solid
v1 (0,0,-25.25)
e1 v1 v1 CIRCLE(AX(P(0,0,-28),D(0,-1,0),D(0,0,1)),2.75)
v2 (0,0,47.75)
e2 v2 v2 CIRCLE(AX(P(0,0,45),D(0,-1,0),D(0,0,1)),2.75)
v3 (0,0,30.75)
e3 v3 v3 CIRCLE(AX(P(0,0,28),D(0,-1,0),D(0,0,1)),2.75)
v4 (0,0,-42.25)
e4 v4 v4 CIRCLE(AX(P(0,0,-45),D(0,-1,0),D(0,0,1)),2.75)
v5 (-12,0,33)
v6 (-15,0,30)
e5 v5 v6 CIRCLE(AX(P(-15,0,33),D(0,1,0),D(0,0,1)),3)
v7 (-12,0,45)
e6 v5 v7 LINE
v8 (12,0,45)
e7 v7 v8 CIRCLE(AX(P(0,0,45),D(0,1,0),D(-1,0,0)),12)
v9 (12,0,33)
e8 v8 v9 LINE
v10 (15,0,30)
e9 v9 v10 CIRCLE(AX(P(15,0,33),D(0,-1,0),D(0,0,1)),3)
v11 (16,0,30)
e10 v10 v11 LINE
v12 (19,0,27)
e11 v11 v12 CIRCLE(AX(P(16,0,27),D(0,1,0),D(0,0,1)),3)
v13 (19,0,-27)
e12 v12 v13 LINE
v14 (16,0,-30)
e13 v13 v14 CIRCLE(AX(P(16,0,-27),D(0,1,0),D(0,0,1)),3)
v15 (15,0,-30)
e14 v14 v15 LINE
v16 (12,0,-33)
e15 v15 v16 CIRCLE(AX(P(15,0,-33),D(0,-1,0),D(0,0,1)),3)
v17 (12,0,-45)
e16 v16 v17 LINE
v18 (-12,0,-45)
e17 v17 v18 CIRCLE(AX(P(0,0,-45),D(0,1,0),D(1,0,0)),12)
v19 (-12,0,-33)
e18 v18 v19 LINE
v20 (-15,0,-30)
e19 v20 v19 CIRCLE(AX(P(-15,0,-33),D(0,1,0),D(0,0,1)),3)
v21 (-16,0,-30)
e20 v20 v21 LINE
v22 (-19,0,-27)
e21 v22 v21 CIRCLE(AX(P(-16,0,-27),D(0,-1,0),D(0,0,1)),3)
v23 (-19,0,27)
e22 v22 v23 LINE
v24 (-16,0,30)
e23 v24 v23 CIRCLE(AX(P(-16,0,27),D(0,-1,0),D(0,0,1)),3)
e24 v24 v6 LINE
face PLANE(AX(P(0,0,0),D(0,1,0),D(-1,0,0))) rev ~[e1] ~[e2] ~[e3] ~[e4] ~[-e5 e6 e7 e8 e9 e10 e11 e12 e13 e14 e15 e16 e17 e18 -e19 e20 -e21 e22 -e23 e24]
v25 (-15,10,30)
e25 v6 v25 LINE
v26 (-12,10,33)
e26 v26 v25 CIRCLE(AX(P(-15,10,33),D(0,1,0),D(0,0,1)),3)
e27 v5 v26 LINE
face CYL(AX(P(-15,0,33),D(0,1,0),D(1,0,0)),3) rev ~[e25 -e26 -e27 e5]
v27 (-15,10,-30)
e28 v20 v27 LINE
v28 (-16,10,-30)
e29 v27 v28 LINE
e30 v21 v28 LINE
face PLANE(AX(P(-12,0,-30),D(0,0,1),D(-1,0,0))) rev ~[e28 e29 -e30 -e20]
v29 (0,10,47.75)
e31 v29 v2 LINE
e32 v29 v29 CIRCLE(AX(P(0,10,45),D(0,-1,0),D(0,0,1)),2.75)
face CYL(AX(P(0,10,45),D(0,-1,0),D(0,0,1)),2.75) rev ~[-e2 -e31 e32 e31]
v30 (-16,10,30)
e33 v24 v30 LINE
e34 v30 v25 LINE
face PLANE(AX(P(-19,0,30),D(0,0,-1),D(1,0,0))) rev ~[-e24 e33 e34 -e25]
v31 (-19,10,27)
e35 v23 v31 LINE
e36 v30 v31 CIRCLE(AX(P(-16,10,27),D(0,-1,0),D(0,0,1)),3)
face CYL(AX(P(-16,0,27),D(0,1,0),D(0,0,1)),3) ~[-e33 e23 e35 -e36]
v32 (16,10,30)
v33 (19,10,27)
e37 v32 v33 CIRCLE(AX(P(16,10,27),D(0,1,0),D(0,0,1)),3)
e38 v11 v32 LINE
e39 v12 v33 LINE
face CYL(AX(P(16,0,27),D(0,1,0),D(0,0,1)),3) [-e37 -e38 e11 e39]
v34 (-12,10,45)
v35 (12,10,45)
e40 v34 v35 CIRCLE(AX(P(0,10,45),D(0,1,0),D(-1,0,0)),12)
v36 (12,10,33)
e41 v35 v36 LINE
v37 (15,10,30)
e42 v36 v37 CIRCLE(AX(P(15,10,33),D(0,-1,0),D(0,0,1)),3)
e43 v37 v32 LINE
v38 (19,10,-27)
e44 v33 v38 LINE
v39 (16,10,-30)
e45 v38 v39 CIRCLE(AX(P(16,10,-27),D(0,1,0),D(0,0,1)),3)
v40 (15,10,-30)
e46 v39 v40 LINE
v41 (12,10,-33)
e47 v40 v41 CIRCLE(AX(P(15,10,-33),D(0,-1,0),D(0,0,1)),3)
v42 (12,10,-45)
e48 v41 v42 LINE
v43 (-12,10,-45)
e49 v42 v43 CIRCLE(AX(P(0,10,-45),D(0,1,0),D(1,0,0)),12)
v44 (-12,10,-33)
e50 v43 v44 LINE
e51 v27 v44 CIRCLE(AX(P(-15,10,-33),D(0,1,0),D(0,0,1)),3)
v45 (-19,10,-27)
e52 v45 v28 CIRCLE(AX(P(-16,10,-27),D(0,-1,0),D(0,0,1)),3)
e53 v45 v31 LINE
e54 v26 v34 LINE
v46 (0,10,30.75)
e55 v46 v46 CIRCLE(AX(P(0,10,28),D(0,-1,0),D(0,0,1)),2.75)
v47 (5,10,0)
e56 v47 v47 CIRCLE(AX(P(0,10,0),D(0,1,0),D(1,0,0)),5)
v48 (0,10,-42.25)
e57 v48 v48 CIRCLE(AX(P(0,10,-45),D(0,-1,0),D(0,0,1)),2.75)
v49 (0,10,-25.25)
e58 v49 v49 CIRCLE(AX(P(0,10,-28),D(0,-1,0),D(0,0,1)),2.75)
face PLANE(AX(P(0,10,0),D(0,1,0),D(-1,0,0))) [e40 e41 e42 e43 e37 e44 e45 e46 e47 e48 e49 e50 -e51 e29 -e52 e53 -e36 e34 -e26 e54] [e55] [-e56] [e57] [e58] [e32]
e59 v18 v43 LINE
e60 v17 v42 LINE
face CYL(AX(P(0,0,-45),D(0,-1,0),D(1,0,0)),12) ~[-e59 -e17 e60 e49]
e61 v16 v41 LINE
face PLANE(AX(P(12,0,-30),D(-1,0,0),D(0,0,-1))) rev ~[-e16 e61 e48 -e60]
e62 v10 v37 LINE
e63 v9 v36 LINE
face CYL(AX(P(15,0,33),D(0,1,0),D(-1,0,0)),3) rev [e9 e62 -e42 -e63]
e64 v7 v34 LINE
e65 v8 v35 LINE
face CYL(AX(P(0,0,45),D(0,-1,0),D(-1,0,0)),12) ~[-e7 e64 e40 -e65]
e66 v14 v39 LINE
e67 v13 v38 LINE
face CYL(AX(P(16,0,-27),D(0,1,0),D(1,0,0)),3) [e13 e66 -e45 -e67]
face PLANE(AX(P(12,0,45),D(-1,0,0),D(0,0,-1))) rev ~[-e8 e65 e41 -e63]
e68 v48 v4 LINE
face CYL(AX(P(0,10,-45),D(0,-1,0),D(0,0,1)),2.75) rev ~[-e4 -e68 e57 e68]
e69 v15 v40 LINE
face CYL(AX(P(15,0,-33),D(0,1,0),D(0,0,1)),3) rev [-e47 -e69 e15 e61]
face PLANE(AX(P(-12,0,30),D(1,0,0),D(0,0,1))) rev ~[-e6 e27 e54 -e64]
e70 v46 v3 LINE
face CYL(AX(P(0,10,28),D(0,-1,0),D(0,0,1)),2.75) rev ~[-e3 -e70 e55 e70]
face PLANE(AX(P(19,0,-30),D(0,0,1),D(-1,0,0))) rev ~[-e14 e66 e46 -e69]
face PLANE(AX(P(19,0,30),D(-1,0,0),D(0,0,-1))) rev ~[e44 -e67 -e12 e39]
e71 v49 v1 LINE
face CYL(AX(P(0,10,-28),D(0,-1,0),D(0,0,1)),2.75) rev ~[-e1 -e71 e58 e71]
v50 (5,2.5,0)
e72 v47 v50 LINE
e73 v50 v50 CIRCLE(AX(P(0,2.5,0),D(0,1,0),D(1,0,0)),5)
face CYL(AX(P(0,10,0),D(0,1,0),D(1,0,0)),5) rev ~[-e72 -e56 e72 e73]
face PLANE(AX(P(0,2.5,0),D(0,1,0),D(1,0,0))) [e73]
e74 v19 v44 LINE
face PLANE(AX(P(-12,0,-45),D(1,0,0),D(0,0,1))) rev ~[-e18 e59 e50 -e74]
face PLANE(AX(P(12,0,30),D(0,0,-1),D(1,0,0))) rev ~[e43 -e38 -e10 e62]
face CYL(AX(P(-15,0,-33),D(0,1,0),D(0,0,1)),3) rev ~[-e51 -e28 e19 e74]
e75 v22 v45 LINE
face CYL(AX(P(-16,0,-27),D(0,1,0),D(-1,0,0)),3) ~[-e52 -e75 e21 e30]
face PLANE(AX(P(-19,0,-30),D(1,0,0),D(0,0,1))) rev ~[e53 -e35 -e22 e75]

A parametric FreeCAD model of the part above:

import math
import FreeCAD as App
import Part
import Sketcher
from FreeCAD import Vector
Q = App.Units.Quantity


def edges_at(feature, points):
    """Names of the edges that pass closest to the given points."""
    edges = feature.Shape.Edges
    near = lambda p: min(range(len(edges)), key=lambda i: edges[i].distToShape(Part.Vertex(*p))[0])
    return sorted({f"Edge{near(p) + 1}" for p in points})

doc = App.newDocument("Part")
params = doc.addObject("Spreadsheet::Sheet", "Params")
for row, (alias, value) in enumerate([
    ("sketch1_radius", "12 mm"),
    ("sketch1_height", "60 mm"),
    ("pad1_length", "10 mm"),
    ("sketch2_diameter", "5.5 mm"),
    ("hole_diameter", "5.5 mm"),
    ("fillet_radius", "3 mm"),
    ("sketch3_diameter", "5.5 mm"),
    ("hole2_diameter", "5.5 mm"),
    ("sketch4_diameter", "10 mm"),
    ("pocket1_length", "7.5 mm"),
], start=1):
    params.set(f"A{row}", alias)
    params.set(f"B{row}", "=" + value)
    params.setAlias(f"B{row}", alias)

body = doc.addObject("PartDesign::Body", "Body")

# Sketch on XZ plane
sketch1 = doc.addObject("Sketcher::SketchObject", "Sketch")
body.addObject(sketch1)
sketch1.AttachmentSupport = (doc.XZ_Plane, [""])
sketch1.MapMode = "FlatFace"
sketch1.addGeometry([
    Part.ArcOfCircle(Part.Circle(Vector(0, 45, 0), Vector(0, 0, 1), 12), math.radians(0), math.radians(180)),  # 0
    Part.LineSegment(Vector(12, 45, 0), Vector(12, 30, 0)),  # 1
    Part.LineSegment(Vector(12, 30, 0), Vector(19, 30, 0)),  # 2
    Part.LineSegment(Vector(19, 30, 0), Vector(19, -30, 0)),  # 3
    Part.LineSegment(Vector(19, -30, 0), Vector(12, -30, 0)),  # 4
    Part.LineSegment(Vector(12, -30, 0), Vector(12, -45, 0)),  # 5
    Part.ArcOfCircle(Part.Circle(Vector(0, -45, 0), Vector(0, 0, 1), 12), math.radians(180), math.radians(360)),  # 6
    Part.LineSegment(Vector(-12, -45, 0), Vector(-12, -30, 0)),  # 7
    Part.LineSegment(Vector(-12, -30, 0), Vector(-19, -30, 0)),  # 8
    Part.LineSegment(Vector(-19, -30, 0), Vector(-19, 30, 0)),  # 9
    Part.LineSegment(Vector(-19, 30, 0), Vector(-12, 30, 0)),  # 10
    Part.LineSegment(Vector(-12, 30, 0), Vector(-12, 45, 0)),  # 11
], False)
sketch1.addConstraint([
    Sketcher.Constraint("Tangent", 0, 1, 1, 1),
    Sketcher.Constraint("Coincident", 1, 2, 2, 1),
    Sketcher.Constraint("Coincident", 2, 2, 3, 1),
    Sketcher.Constraint("Coincident", 3, 2, 4, 1),
    Sketcher.Constraint("Coincident", 4, 2, 5, 1),
    Sketcher.Constraint("Tangent", 5, 2, 6, 2),
    Sketcher.Constraint("Tangent", 6, 1, 7, 1),
    Sketcher.Constraint("Coincident", 7, 2, 8, 1),
    Sketcher.Constraint("Coincident", 8, 2, 9, 1),
    Sketcher.Constraint("Coincident", 9, 2, 10, 1),
    Sketcher.Constraint("Coincident", 10, 2, 11, 1),
    Sketcher.Constraint("Tangent", 11, 2, 0, 2),
    Sketcher.Constraint("Vertical", 1),
    Sketcher.Constraint("Horizontal", 2),
    Sketcher.Constraint("Vertical", 3),
    Sketcher.Constraint("Horizontal", 4),
    Sketcher.Constraint("Vertical", 5),
    Sketcher.Constraint("Vertical", 7),
    Sketcher.Constraint("Horizontal", 8),
    Sketcher.Constraint("Vertical", 9),
    Sketcher.Constraint("Horizontal", 10),
    Sketcher.Constraint("Vertical", 11),
    Sketcher.Constraint("Equal", 0, 6),
    Sketcher.Constraint("Symmetric", 0, 3, 6, 3, -1, 1),
    Sketcher.Constraint("Symmetric", 2, 2, 8, 2, -1, 1),
    Sketcher.Constraint("Symmetric", 4, 2, 7, 2, -2),
    Sketcher.Constraint("Horizontal", 2, 2, 9, 2),
    Sketcher.Constraint("Radius", 0, Q("12 mm")),
    Sketcher.Constraint("DistanceY", 3, 2, 3, 1, Q("60 mm")),
    Sketcher.Constraint("DistanceY", 6, 3, 0, 3, Q("90 mm")),
    Sketcher.Constraint("DistanceX", 9, 2, 2, 2, Q("38 mm")),
])
sketch1.setExpression("Constraints[27]", "Params.sketch1_radius")
sketch1.setExpression("Constraints[28]", "Params.sketch1_height")
pad1 = doc.addObject("PartDesign::Pad", "Pad")
body.addObject(pad1)
pad1.Profile = sketch1
pad1.setExpression("Length", "Params.pad1_length")
pad1.Reversed = True

# Sketch on XZ plane
sketch2 = doc.addObject("Sketcher::SketchObject", "Sketch001")
body.addObject(sketch2)
sketch2.AttachmentSupport = (doc.XZ_Plane, [""])
sketch2.MapMode = "FlatFace"
sketch2.AttachmentOffset = App.Placement(Vector(0, 0, -10), App.Rotation())
sketch2.addGeometry([
    Part.Circle(Vector(0, 28, 0), Vector(0, 0, 1), 2.8),
    Part.Circle(Vector(0, -28, 0), Vector(0, 0, 1), 2.8),
], False)
sketch2.addConstraint([
    Sketcher.Constraint("Equal", 0, 1),
    Sketcher.Constraint("Symmetric", 0, 3, 1, 3, -1, 1),
    Sketcher.Constraint("PointOnObject", 0, 3, -2),
    Sketcher.Constraint("Diameter", 0, Q("5.5 mm")),
    Sketcher.Constraint("DistanceY", -1, 1, 0, 3, Q("28 mm")),
])
sketch2.setExpression("Constraints[3]", "Params.sketch2_diameter")
doc.recompute()
hole = doc.addObject("PartDesign::Hole", "Hole")
body.addObject(hole)
hole.Profile = sketch2
hole.ThreadType = "None"
hole.setExpression("Diameter", "Params.hole_diameter")
hole.DepthType = "ThroughAll"
hole.Reversed = True
doc.recompute()

fillet = doc.addObject("PartDesign::Fillet", "Fillet")
body.addObject(fillet)
fillet.Base = (hole, edges_at(hole, [
    (19, 5, 30),
    (19, 5, -30),
    (12, 5, 30),
    (-19, 5, 30),
    (-12, 5, 30),
    (-19, 5, -30),
    (-12, 5, -30),
    (12, 5, -30),
]))
fillet.setExpression("Radius", "Params.fillet_radius")

# Sketch on XZ plane
sketch3 = doc.addObject("Sketcher::SketchObject", "Sketch002")
body.addObject(sketch3)
sketch3.AttachmentSupport = (doc.XZ_Plane, [""])
sketch3.MapMode = "FlatFace"
sketch3.AttachmentOffset = App.Placement(Vector(0, 0, -10), App.Rotation())
sketch3.addGeometry([
    Part.Circle(Vector(0, 45, 0), Vector(0, 0, 1), 2.8),
    Part.Circle(Vector(0, -45, 0), Vector(0, 0, 1), 2.8),
], False)
sketch3.addConstraint([
    Sketcher.Constraint("Equal", 0, 1),
    Sketcher.Constraint("Symmetric", 0, 3, 1, 3, -1, 1),
    Sketcher.Constraint("PointOnObject", 0, 3, -2),
    Sketcher.Constraint("Diameter", 0, Q("5.5 mm")),
    Sketcher.Constraint("DistanceY", -1, 1, 0, 3, Q("45 mm")),
])
sketch3.setExpression("Constraints[3]", "Params.sketch3_diameter")
doc.recompute()
hole2 = doc.addObject("PartDesign::Hole", "Hole001")
body.addObject(hole2)
hole2.Profile = sketch3
hole2.ThreadType = "None"
hole2.setExpression("Diameter", "Params.hole2_diameter")
hole2.DepthType = "ThroughAll"
hole2.Reversed = True

# Sketch on XZ plane
sketch4 = doc.addObject("Sketcher::SketchObject", "Sketch003")
body.addObject(sketch4)
sketch4.AttachmentSupport = (doc.XZ_Plane, [""])
sketch4.MapMode = "FlatFace"
sketch4.AttachmentOffset = App.Placement(Vector(0, 0, -10), App.Rotation())
sketch4.addGeometry(Part.Circle(Vector(0, 0, 0), Vector(0, 0, 1), 5), False)
sketch4.addConstraint([
    Sketcher.Constraint("Coincident", 0, 3, -1, 1),
    Sketcher.Constraint("Diameter", 0, Q("10 mm")),
])
sketch4.setExpression("Constraints[1]", "Params.sketch4_diameter")
pocket1 = doc.addObject("PartDesign::Pocket", "Pocket")
body.addObject(pocket1)
pocket1.Profile = sketch4
pocket1.setExpression("Length", "Params.pocket1_length")
pocket1.Reversed = True

doc.recompute()
